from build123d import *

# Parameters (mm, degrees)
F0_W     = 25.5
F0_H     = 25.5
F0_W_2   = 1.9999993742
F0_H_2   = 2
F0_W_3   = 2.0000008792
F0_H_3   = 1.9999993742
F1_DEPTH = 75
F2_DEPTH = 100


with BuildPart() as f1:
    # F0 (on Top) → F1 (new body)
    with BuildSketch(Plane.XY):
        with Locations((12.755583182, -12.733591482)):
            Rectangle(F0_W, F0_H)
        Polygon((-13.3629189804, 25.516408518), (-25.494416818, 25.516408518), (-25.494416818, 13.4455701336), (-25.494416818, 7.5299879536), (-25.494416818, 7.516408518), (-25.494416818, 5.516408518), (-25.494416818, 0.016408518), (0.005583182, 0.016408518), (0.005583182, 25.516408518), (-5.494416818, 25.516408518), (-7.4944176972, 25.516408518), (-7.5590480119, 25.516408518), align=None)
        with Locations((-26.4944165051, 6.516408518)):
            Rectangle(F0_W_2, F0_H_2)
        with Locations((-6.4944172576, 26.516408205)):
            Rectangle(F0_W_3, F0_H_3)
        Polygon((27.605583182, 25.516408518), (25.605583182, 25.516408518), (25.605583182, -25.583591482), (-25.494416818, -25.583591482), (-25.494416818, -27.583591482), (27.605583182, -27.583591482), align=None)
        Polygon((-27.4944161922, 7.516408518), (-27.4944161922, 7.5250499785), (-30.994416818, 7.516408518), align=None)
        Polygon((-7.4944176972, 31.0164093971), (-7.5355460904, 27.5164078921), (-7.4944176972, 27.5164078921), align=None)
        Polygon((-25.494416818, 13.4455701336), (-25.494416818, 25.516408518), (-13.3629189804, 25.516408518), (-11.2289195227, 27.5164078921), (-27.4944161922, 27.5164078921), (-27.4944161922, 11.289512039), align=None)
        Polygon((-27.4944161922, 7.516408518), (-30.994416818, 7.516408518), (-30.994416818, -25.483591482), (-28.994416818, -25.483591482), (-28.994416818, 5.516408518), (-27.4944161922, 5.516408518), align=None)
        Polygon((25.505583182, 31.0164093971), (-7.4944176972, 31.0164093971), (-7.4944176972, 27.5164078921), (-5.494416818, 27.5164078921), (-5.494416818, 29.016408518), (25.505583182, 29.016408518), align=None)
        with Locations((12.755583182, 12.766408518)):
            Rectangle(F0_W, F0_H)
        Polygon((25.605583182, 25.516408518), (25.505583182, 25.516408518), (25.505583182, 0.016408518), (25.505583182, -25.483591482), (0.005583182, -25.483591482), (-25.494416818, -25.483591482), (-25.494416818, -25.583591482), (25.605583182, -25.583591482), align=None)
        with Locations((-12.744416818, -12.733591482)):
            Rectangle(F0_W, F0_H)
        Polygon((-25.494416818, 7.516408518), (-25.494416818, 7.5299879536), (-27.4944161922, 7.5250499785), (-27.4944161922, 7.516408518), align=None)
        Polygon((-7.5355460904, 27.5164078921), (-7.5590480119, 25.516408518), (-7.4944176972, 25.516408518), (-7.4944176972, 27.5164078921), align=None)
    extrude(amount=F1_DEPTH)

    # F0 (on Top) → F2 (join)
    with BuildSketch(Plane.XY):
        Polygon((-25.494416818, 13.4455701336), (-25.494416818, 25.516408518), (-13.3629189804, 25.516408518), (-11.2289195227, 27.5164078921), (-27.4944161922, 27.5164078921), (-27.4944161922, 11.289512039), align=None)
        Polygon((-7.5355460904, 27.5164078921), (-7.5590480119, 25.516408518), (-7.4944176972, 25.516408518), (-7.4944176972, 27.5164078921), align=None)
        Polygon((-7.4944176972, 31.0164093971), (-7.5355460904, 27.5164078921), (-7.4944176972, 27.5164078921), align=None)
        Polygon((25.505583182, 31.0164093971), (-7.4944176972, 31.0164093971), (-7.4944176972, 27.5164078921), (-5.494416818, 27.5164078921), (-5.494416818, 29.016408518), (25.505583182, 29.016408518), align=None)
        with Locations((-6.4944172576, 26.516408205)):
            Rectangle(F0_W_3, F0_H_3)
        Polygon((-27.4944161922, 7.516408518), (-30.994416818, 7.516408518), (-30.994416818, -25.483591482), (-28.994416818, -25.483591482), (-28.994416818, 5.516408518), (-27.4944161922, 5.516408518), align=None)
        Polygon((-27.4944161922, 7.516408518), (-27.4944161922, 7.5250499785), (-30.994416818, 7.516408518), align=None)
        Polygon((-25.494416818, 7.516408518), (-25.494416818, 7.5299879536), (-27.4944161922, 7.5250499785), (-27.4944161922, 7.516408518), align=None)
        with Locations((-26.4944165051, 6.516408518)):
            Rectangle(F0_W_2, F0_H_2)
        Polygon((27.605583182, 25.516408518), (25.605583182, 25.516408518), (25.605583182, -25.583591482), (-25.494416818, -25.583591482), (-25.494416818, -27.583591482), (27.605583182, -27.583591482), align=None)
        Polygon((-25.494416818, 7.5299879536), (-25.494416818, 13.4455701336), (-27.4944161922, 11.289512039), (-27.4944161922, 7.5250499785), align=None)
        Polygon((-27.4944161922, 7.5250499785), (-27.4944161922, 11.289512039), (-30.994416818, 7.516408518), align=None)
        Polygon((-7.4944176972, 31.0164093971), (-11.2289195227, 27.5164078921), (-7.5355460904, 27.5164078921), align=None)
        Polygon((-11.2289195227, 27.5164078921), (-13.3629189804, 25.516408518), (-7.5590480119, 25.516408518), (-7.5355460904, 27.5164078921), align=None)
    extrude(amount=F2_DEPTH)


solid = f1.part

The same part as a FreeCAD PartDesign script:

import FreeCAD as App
import Part
import Sketcher
Q = App.Units.Quantity


def add_polygon(sketch, points):
    """Adds a closed chain of lines whose ends are joined by coincident constraints."""
    first, n = sketch.GeometryCount, len(points)
    for a, b in zip(points, points[1:] + points[:1]):
        sketch.addGeometry(Part.LineSegment(App.Vector(*a, 0), App.Vector(*b, 0)), False)
    for i in range(n):
        sketch.addConstraint(Sketcher.Constraint("Coincident", first + i, 2, first + (i + 1) % n, 1))

doc = App.newDocument("Part")
params = doc.addObject("Spreadsheet::Sheet", "Params")
for row, (alias, value) in enumerate([
    ("sketch1_width", "31 mm"),
    ("sketch1_width2", "33.000001 mm"),
    ("sketch1_width3", "2 mm"),
    ("sketch1_width4", "53.1 mm"),
    ("sketch1_width5", "2.1 mm"),
    ("pad1_length", "75 mm"),
    ("sketch2_width", "17.999999 mm"),
    ("sketch2_width2", "2.000001 mm"),
    ("sketch2_width3", "31 mm"),
    ("sketch2_height", "20 mm"),
    ("sketch2_width4", "3.5 mm"),
    ("pad2_length", "100 mm"),
], start=1):
    params.set(f"A{row}", alias)
    params.set(f"B{row}", "=" + value)
    params.setAlias(f"B{row}", alias)

body = doc.addObject("PartDesign::Body", "Body")

sketch1 = doc.addObject("Sketcher::SketchObject", "Sketch")
body.addObject(sketch1)
sketch1.AttachmentSupport = (doc.XY_Plane, [""])
sketch1.MapMode = "FlatFace"
add_polygon(sketch1, [(-25.5, -27.6), (27.6, -27.6), (27.6, 25.5), (25.5, 25.5), (-5.5, 25.5), (-5.5, 29), (25.5, 29), (25.5, 31), (-7.5, 31), (-7.5, 27.5), (-7.6, 25.5), (-13.4, 25.5), (-11.2, 27.5), (-27.5, 27.5), (-27.5, 11.3), (-25.5, 13.4), (-25.5, 7.5), (-27.5, 7.5), (-31, 7.5), (-31, -25.5), (-29, -25.5), (-29, 5.5), (-25.5, 5.5)])
sketch1.addConstraint(Sketcher.Constraint("Horizontal", 0))
sketch1.addConstraint(Sketcher.Constraint("Vertical", 1))
sketch1.addConstraint(Sketcher.Constraint("Horizontal", 2))
sketch1.addConstraint(Sketcher.Constraint("Horizontal", 3))
sketch1.addConstraint(Sketcher.Constraint("Vertical", 4))
sketch1.addConstraint(Sketcher.Constraint("Horizontal", 5))
sketch1.addConstraint(Sketcher.Constraint("Vertical", 6))
sketch1.addConstraint(Sketcher.Constraint("Horizontal", 7))
sketch1.addConstraint(Sketcher.Constraint("Horizontal", 10))
sketch1.addConstraint(Sketcher.Constraint("Horizontal", 12))
sketch1.addConstraint(Sketcher.Constraint("Vertical", 13))
sketch1.addConstraint(Sketcher.Constraint("Vertical", 15))
sketch1.addConstraint(Sketcher.Constraint("Vertical", 18))
sketch1.addConstraint(Sketcher.Constraint("Horizontal", 19))
sketch1.addConstraint(Sketcher.Constraint("Vertical", 20))
sketch1.addConstraint(Sketcher.Constraint("Horizontal", 21))
sketch1.addConstraint(Sketcher.Constraint("Vertical", 22))
sketch1.addConstraint(Sketcher.Constraint("Parallel", 8, 9))
sketch1.addConstraint(Sketcher.Constraint("Parallel", 16, 17))
sketch1.addConstraint(Sketcher.Constraint("Horizontal", 3, 2, 9, 2))
sketch1.addConstraint(Sketcher.Constraint("Horizontal", 8, 2, 11, 2))
sketch1.addConstraint(Sketcher.Constraint("Vertical", 2, 2, 5, 2))
sketch1.addConstraint(Sketcher.Constraint("Vertical", 13, 2, 16, 2))
sketch1.addConstraint(Sketcher.Constraint("Vertical", 15, 2, 21, 2))
sketch1.addConstraint(Sketcher.Constraint("Equal", 0, 1))
sketch1.addConstraint(Sketcher.Constraint("Equal", 21, 4))
sketch1.addConstraint(Sketcher.Constraint("Equal", 19, 6))
sketch1.addConstraint(Sketcher.Constraint("Equal", 7, 18))
sketch1.addConstraint(Sketcher.Constraint("Equal", 5, 20))
sketch1.addConstraint(Sketcher.Constraint("DistanceX", 3, 2, 3, 1, Q("31 mm")))
sketch1.addConstraint(Sketcher.Constraint("DistanceX", 7, 2, 7, 1, Q("33.000001 mm")))
sketch1.addConstraint(Sketcher.Constraint("DistanceX", 19, 1, 19, 2, Q("2 mm")))
sketch1.addConstraint(Sketcher.Constraint("DistanceX", 0, 1, 0, 2, Q("53.1 mm")))
sketch1.addConstraint(Sketcher.Constraint("DistanceX", 2, 2, 2, 1, Q("2.1 mm")))
sketch1.addConstraint(Sketcher.Constraint("DistanceX", 21, 1, 21, 2, Q("3.5 mm")))
sketch1.addConstraint(Sketcher.Constraint("DistanceY", 22, 2, 22, 1, Q("33.1 mm")))
sketch1.addConstraint(Sketcher.Constraint("DistanceY", 3, 2, 8, 2, Q("1.999999 mm")))
sketch1.addConstraint(Sketcher.Constraint("DistanceX", 12, 2, 7, 2, Q("19.999998 mm")))
sketch1.addConstraint(Sketcher.Constraint("DistanceX", 10, 2, 11, 2, Q("2.133999 mm")))
sketch1.addConstraint(Sketcher.Constraint("DistanceX", 10, 2, 10, 1, Q("5.803871 mm")))
sketch1.addConstraint(Sketcher.Constraint("DistanceX", 9, 2, 8, 2, Q("0.023502 mm")))
sketch1.addConstraint(Sketcher.Constraint("DistanceY", 13, 2, 13, 1, Q("16.226896 mm")))
sketch1.addConstraint(Sketcher.Constraint("DistanceY", 15, 2, 15, 1, Q("5.915582 mm")))
sketch1.addConstraint(Sketcher.Constraint("DistanceY", 0, 2, -1, 1, Q("27.583591 mm")))
sketch1.addConstraint(Sketcher.Constraint("DistanceX", 9, 2, -1, 1, Q("7.559048 mm")))
sketch1.addConstraint(Sketcher.Constraint("DistanceY", -1, 1, 14, 2, Q("13.44557 mm")))
sketch1.setExpression("Constraints[52]", "Params.sketch1_width")
sketch1.setExpression("Constraints[53]", "Params.sketch1_width2")
sketch1.setExpression("Constraints[54]", "Params.sketch1_width3")
sketch1.setExpression("Constraints[55]", "Params.sketch1_width4")
sketch1.setExpression("Constraints[56]", "Params.sketch1_width5")
pad1 = doc.addObject("PartDesign::Pad", "Pad")
body.addObject(pad1)
pad1.Profile = sketch1
pad1.setExpression("Length", "Params.pad1_length")

sketch2 = doc.addObject("Sketcher::SketchObject", "Sketch001")
body.addObject(sketch2)
sketch2.AttachmentSupport = (doc.XY_Plane, [""])
sketch2.MapMode = "FlatFace"
add_polygon(sketch2, [(-25.5, 25.5), (-7.5, 25.5), (-5.5, 25.5), (-5.5, 29), (25.5, 29), (25.5, 31), (-7.5, 31), (-11.2, 27.5), (-27.5, 27.5), (-27.5, 11.3), (-31, 7.5), (-31, -25.5), (-29, -25.5), (-29, 5.5), (-25.5, 5.5)])
add_polygon(sketch2, [(27.6, 25.5), (25.6, 25.5), (25.6, -25.6), (-25.5, -25.6), (-25.5, -27.6), (27.6, -27.6)])
sketch2.addConstraint(Sketcher.Constraint("Horizontal", 0))
sketch2.addConstraint(Sketcher.Constraint("Horizontal", 1))
sketch2.addConstraint(Sketcher.Constraint("Vertical", 2))
sketch2.addConstraint(Sketcher.Constraint("Horizontal", 3))
sketch2.addConstraint(Sketcher.Constraint("Vertical", 4))
sketch2.addConstraint(Sketcher.Constraint("Horizontal", 5))
sketch2.addConstraint(Sketcher.Constraint("Horizontal", 7))
sketch2.addConstraint(Sketcher.Constraint("Vertical", 8))
sketch2.addConstraint(Sketcher.Constraint("Vertical", 10))
sketch2.addConstraint(Sketcher.Constraint("Horizontal", 11))
sketch2.addConstraint(Sketcher.Constraint("Vertical", 12))
sketch2.addConstraint(Sketcher.Constraint("Horizontal", 13))
sketch2.addConstraint(Sketcher.Constraint("Vertical", 14))
sketch2.addConstraint(Sketcher.Constraint("Horizontal", 15))
sketch2.addConstraint(Sketcher.Constraint("Vertical", 16))
sketch2.addConstraint(Sketcher.Constraint("Horizontal", 17))
sketch2.addConstraint(Sketcher.Constraint("Vertical", 18))
sketch2.addConstraint(Sketcher.Constraint("Horizontal", 19))
sketch2.addConstraint(Sketcher.Constraint("Vertical", 20))
sketch2.addConstraint(Sketcher.Constraint("Horizontal", 14, 2, 15, 2))
sketch2.addConstraint(Sketcher.Constraint("Vertical", 0, 2, 5, 2))
sketch2.addConstraint(Sketcher.Constraint("Vertical", 14, 2, 17, 2))
sketch2.addConstraint(Sketcher.Constraint("Equal", 1, 11))
sketch2.addConstraint(Sketcher.Constraint("Equal", 11, 15))
sketch2.addConstraint(Sketcher.Constraint("Equal", 13, 2))
sketch2.addConstraint(Sketcher.Constraint("Equal", 15, 4))
sketch2.addConstraint(Sketcher.Constraint("Equal", 5, 10))
sketch2.addConstraint(Sketcher.Constraint("Equal", 3, 12))
sketch2.addConstraint(Sketcher.Constraint("Equal", 17, 16))
sketch2.addConstraint(Sketcher.Constraint("Equal", 4, 18))
sketch2.addConstraint(Sketcher.Constraint("DistanceX", 0, 1, 0, 2, Q("17.999999 mm")))
sketch2.addConstraint(Sketcher.Constraint("DistanceX", 1, 1, 1, 2, Q("2.000001 mm")))
sketch2.addConstraint(Sketcher.Constraint("DistanceX", 3, 1, 3, 2, Q("31 mm")))
sketch2.addConstraint(Sketcher.Constraint("DistanceY", 14, 1, 14, 2, Q("20 mm")))
sketch2.addConstraint(Sketcher.Constraint("DistanceX", 13, 1, 13, 2, Q("3.5 mm")))
sketch2.addConstraint(Sketcher.Constraint("DistanceX", 17, 2, 17, 1, Q("51.1 mm")))
sketch2.addConstraint(Sketcher.Constraint("DistanceY", 0, 2, 6, 2, Q("1.999999 mm")))
sketch2.addConstraint(Sketcher.Constraint("DistanceX", 7, 2, 0, 2, Q("19.999998 mm")))
sketch2.addConstraint(Sketcher.Constraint("DistanceX", 6, 2, 0, 2, Q("3.734502 mm")))
sketch2.addConstraint(Sketcher.Constraint("DistanceY", 8, 2, 8, 1, Q("16.226896 mm")))
sketch2.addConstraint(Sketcher.Constraint("DistanceY", -1, 1, 0, 2, Q("25.516409 mm")))
sketch2.addConstraint(Sketcher.Constraint("DistanceX", 6, 2, -1, 1, Q("11.22892 mm")))
sketch2.setExpression("Constraints[51]", "Params.sketch2_width")
sketch2.setExpression("Constraints[52]", "Params.sketch2_width2")
sketch2.setExpression("Constraints[53]", "Params.sketch2_width3")
sketch2.setExpression("Constraints[54]", "Params.sketch2_height")
sketch2.setExpression("Constraints[55]", "Params.sketch2_width4")
pad2 = doc.addObject("PartDesign::Pad", "Pad001")
body.addObject(pad2)
pad2.Profile = sketch2
pad2.setExpression("Length", "Params.pad2_length")

doc.recompute()
